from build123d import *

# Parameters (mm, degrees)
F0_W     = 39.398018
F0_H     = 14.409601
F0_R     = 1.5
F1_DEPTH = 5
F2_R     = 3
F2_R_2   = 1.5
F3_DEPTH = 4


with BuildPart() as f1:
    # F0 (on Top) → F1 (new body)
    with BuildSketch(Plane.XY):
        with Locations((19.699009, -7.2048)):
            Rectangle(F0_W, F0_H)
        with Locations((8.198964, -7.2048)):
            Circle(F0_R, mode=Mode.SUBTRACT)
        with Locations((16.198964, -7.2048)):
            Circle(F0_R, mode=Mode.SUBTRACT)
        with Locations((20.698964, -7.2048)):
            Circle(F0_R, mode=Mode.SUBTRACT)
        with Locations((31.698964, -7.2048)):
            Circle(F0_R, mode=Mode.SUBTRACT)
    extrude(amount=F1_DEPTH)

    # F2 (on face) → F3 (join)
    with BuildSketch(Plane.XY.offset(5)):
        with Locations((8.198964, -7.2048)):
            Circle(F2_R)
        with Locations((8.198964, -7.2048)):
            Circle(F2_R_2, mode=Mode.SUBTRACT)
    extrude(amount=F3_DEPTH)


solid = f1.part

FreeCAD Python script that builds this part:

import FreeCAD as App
import Part
import Sketcher
Q = App.Units.Quantity

doc = App.newDocument("Part")
body = doc.addObject("PartDesign::Body", "Body")

# Sketch on XY plane
sketch1 = body.newObject("Sketcher::SketchObject", "Sketch")
sketch1.AttachmentSupport = (doc.getObject("XY_Plane"), [""])
sketch1.MapMode = "FlatFace"
sketch1.addGeometry([
    Part.LineSegment(App.Vector(0, 0, 0), App.Vector(0, -14.4, 0)),  # 0
    Part.LineSegment(App.Vector(0, -14.4, 0), App.Vector(39.4, -14.4, 0)),  # 1
    Part.LineSegment(App.Vector(39.4, -14.4, 0), App.Vector(39.4, 0, 0)),  # 2
    Part.LineSegment(App.Vector(39.4, 0, 0), App.Vector(0, 0, 0)),  # 3
    Part.Circle(App.Vector(8.2, -7.2, 0), App.Vector(0, 0, 1), 1.5),  # 4
    Part.Circle(App.Vector(16.2, -7.2, 0), App.Vector(0, 0, 1), 1.5),  # 5
    Part.Circle(App.Vector(20.7, -7.2, 0), App.Vector(0, 0, 1), 1.5),  # 6
    Part.Circle(App.Vector(31.7, -7.2, 0), App.Vector(0, 0, 1), 1.5),  # 7
], False)
sketch1.addConstraint([
    Sketcher.Constraint("Coincident", 0, 2, 1, 1),
    Sketcher.Constraint("Coincident", 1, 2, 2, 1),
    Sketcher.Constraint("Coincident", 2, 2, 3, 1),
    Sketcher.Constraint("Coincident", 3, 2, 0, 1),
    Sketcher.Constraint("Vertical", 0),
    Sketcher.Constraint("Horizontal", 1),
    Sketcher.Constraint("Vertical", 2),
    Sketcher.Constraint("Horizontal", 3),
    Sketcher.Constraint("Coincident", 3, 2, -1, 1),
    Sketcher.Constraint("Equal", 4, 5),
    Sketcher.Constraint("Equal", 5, 6),
    Sketcher.Constraint("Equal", 6, 7),
    Sketcher.Constraint("Horizontal", 4, 3, 5, 3),
    Sketcher.Constraint("Horizontal", 5, 3, 6, 3),
    Sketcher.Constraint("Horizontal", 6, 3, 7, 3),
    Sketcher.Constraint("Diameter", 4, Q("3 mm")),
    Sketcher.Constraint("DistanceX", 4, 3, 5, 3, Q("8 mm")),
    Sketcher.Constraint("DistanceX", 6, 3, 7, 3, Q("11 mm")),
    Sketcher.Constraint("DistanceX", 5, 3, 6, 3, Q("4.5 mm")),
    Sketcher.Constraint("DistanceY", 0, 2, 0, 1, Q("14.409601 mm")),
    Sketcher.Constraint("DistanceY", 4, 3, -1, 1, Q("7.2048 mm")),
    Sketcher.Constraint("DistanceX", 1, 1, 1, 2, Q("39.398018 mm")),
    Sketcher.Constraint("DistanceX", -1, 1, 4, 3, Q("8.198964 mm")),
])
pad1 = body.newObject("PartDesign::Pad", "Pad")
pad1.Profile = sketch1
pad1.Length = 5

# Sketch on XY plane
sketch2 = body.newObject("Sketcher::SketchObject", "Sketch001")
sketch2.AttachmentSupport = (doc.getObject("XY_Plane"), [""])
sketch2.MapMode = "FlatFace"
sketch2.AttachmentOffset = App.Placement(App.Vector(0, 0, 5), App.Rotation())
sketch2.addGeometry([
    Part.Circle(App.Vector(8.2, -7.2, 0), App.Vector(0, 0, 1), 3),
    Part.Circle(App.Vector(8.2, -7.2, 0), App.Vector(0, 0, 1), 1.5),
], False)
sketch2.addConstraint([
    Sketcher.Constraint("Coincident", 1, 3, 0, 3),
    Sketcher.Constraint("Diameter", 0, Q("6 mm")),
    Sketcher.Constraint("Diameter", 1, Q("3 mm")),
    Sketcher.Constraint("DistanceY", 0, 3, -1, 1, Q("7.2048 mm")),
    Sketcher.Constraint("DistanceX", -1, 1, 0, 3, Q("8.198964 mm")),
])
pad2 = body.newObject("PartDesign::Pad", "Pad001")
pad2.Profile = sketch2
pad2.Length = 4

doc.recompute()
